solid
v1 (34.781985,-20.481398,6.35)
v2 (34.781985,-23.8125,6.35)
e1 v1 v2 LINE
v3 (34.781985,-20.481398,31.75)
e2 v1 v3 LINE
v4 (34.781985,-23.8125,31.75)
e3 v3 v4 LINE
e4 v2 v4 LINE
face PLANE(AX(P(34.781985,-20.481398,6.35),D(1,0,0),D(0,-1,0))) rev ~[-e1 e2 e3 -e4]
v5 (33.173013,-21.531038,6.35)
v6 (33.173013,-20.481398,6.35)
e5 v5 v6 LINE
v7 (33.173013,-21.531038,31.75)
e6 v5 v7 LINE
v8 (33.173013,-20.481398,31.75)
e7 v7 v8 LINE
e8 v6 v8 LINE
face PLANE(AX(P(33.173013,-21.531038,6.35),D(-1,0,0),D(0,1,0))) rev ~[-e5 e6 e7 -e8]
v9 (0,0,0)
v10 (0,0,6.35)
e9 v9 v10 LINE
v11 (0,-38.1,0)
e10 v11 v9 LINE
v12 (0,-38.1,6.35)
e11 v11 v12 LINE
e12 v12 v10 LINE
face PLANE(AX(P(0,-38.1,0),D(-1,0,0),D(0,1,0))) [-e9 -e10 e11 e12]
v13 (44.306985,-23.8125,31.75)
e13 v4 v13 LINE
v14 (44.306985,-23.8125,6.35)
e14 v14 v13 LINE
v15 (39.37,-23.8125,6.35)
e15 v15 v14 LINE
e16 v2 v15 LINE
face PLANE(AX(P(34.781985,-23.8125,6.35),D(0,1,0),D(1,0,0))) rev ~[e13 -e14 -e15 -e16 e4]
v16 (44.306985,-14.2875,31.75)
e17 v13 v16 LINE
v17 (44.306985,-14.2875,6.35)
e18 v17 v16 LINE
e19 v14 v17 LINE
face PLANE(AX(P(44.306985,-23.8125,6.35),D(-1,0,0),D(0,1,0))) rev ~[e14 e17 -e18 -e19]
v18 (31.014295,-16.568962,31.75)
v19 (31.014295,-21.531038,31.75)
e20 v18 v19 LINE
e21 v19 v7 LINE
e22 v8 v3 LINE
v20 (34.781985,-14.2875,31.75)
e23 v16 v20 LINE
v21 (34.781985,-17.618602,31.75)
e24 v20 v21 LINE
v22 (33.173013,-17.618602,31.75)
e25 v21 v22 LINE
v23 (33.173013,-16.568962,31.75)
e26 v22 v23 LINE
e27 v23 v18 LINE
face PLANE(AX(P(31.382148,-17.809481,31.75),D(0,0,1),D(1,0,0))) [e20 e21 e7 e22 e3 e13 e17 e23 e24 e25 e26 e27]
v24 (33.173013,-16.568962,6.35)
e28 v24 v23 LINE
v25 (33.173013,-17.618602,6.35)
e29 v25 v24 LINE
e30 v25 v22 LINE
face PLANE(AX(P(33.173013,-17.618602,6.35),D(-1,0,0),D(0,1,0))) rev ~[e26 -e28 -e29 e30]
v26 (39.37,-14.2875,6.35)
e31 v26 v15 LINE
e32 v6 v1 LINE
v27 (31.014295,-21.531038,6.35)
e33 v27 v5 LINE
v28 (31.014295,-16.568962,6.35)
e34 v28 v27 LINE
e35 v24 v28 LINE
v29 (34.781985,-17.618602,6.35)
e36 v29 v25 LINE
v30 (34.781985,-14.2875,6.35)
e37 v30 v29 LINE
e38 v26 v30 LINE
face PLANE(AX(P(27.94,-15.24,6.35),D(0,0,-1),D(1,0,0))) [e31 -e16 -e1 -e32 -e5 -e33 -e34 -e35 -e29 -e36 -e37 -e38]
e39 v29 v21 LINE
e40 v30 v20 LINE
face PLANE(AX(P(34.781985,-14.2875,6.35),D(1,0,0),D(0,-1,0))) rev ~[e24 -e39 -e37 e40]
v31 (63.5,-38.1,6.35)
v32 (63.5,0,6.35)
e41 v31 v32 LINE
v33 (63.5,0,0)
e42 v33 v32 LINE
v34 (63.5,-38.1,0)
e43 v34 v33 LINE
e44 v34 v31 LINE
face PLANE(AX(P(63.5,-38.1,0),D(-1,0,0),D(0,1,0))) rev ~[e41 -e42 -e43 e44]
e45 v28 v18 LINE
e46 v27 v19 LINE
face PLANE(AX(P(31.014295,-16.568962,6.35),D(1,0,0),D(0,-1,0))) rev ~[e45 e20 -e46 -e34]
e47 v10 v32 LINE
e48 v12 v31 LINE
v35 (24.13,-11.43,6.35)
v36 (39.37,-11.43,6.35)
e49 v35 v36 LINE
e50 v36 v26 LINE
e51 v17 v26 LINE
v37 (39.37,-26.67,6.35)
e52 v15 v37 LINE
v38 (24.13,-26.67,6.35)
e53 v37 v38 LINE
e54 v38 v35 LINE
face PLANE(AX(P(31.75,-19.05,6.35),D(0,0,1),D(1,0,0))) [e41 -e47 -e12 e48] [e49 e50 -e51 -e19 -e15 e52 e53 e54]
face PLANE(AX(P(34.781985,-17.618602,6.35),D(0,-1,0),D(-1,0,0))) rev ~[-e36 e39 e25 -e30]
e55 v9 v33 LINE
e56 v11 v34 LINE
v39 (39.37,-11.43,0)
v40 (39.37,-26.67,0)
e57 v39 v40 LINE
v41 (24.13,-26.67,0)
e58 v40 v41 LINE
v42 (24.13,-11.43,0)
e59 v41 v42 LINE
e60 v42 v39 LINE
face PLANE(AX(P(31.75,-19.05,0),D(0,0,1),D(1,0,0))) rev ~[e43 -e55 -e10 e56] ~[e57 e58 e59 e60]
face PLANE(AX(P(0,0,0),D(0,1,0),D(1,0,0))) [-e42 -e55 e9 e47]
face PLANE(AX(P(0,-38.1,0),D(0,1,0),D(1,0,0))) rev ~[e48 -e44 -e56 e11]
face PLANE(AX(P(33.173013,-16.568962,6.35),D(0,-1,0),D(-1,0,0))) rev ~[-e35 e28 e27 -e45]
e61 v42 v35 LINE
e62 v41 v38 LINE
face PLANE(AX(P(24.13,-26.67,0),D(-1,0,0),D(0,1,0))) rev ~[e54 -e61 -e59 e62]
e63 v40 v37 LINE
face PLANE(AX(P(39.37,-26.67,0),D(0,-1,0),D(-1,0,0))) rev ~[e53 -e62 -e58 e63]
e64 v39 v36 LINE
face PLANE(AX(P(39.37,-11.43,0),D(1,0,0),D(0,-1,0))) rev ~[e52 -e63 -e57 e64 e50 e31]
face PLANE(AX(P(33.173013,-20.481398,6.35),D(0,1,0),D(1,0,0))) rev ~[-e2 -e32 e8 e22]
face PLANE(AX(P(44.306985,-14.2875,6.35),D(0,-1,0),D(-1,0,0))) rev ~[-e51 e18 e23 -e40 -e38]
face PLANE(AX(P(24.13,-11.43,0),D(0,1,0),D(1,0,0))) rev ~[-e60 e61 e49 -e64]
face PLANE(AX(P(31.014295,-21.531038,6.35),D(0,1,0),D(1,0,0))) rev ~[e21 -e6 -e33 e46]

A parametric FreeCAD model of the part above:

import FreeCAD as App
import Part
import Sketcher

V = App.Vector
Q = App.Units.Quantity

doc = App.newDocument("Part")
body = doc.addObject("PartDesign::Body", "Body")

# Sketch on XY plane
sketch1 = body.newObject("Sketcher::SketchObject", "Sketch")
sketch1.AttachmentSupport = (doc.getObject("XY_Plane"), [""])
sketch1.MapMode = "FlatFace"
sketch1.addGeometry([
    Part.LineSegment(V(0, 0, 0), V(0, -38, 0)),
    Part.LineSegment(V(0, -38, 0), V(64, -38, 0)),
    Part.LineSegment(V(64, -38, 0), V(64, 0, 0)),
    Part.LineSegment(V(64, 0, 0), V(0, 0, 0)),
], False)
sketch1.addConstraint([
    Sketcher.Constraint("Coincident", 0, 2, 1, 1),
    Sketcher.Constraint("Coincident", 1, 2, 2, 1),
    Sketcher.Constraint("Coincident", 2, 2, 3, 1),
    Sketcher.Constraint("Coincident", 3, 2, 0, 1),
    Sketcher.Constraint("Vertical", 0),
    Sketcher.Constraint("Horizontal", 1),
    Sketcher.Constraint("Vertical", 2),
    Sketcher.Constraint("Horizontal", 3),
    Sketcher.Constraint("Coincident", 3, 2, -1, 1),
    Sketcher.Constraint("DistanceX", 1, 1, 1, 2, Q("2.5 in")),
    Sketcher.Constraint("DistanceY", 0, 2, 0, 1, Q("1.5 in")),
])
pad1 = body.newObject("PartDesign::Pad", "Pad")
pad1.Profile = sketch1
pad1.Length = Q("0.25 in")

# Sketch on XY plane
sketch2 = body.newObject("Sketcher::SketchObject", "Sketch001")
sketch2.AttachmentSupport = (doc.getObject("XY_Plane"), [""])
sketch2.MapMode = "FlatFace"
sketch2.AttachmentOffset = App.Placement(V(0, 0, 0.25 * 25.4), App.Rotation())
sketch2.addGeometry([
    Part.LineSegment(V(31, -16.6, 0), V(31, -21.5, 0)),  # 0
    Part.LineSegment(V(31, -21.5, 0), V(33.2, -21.5, 0)),  # 1
    Part.LineSegment(V(33.2, -21.5, 0), V(33.2, -20.5, 0)),  # 2
    Part.LineSegment(V(33.2, -20.5, 0), V(34.8, -20.5, 0)),  # 3
    Part.LineSegment(V(34.8, -20.5, 0), V(34.8, -23.8, 0)),  # 4
    Part.LineSegment(V(34.8, -23.8, 0), V(44.3, -23.8, 0)),  # 5
    Part.LineSegment(V(44.3, -23.8, 0), V(44.3, -14.3, 0)),  # 6
    Part.LineSegment(V(44.3, -14.3, 0), V(34.8, -14.3, 0)),  # 7
    Part.LineSegment(V(34.8, -14.3, 0), V(34.8, -17.6, 0)),  # 8
    Part.LineSegment(V(34.8, -17.6, 0), V(33.2, -17.6, 0)),  # 9
    Part.LineSegment(V(33.2, -17.6, 0), V(33.2, -16.6, 0)),  # 10
    Part.LineSegment(V(33.2, -16.6, 0), V(31, -16.6, 0)),  # 11
], False)
sketch2.addConstraint([
    Sketcher.Constraint("Coincident", 0, 2, 1, 1),
    Sketcher.Constraint("Coincident", 1, 2, 2, 1),
    Sketcher.Constraint("Coincident", 2, 2, 3, 1),
    Sketcher.Constraint("Coincident", 3, 2, 4, 1),
    Sketcher.Constraint("Coincident", 4, 2, 5, 1),
    Sketcher.Constraint("Coincident", 5, 2, 6, 1),
    Sketcher.Constraint("Coincident", 6, 2, 7, 1),
    Sketcher.Constraint("Coincident", 7, 2, 8, 1),
    Sketcher.Constraint("Coincident", 8, 2, 9, 1),
    Sketcher.Constraint("Coincident", 9, 2, 10, 1),
    Sketcher.Constraint("Coincident", 10, 2, 11, 1),
    Sketcher.Constraint("Coincident", 11, 2, 0, 1),
    Sketcher.Constraint("Vertical", 0),
    Sketcher.Constraint("Horizontal", 1),
    Sketcher.Constraint("Vertical", 2),
    Sketcher.Constraint("Horizontal", 3),
    Sketcher.Constraint("Vertical", 4),
    Sketcher.Constraint("Horizontal", 5),
    Sketcher.Constraint("Vertical", 6),
    Sketcher.Constraint("Horizontal", 7),
    Sketcher.Constraint("Vertical", 8),
    Sketcher.Constraint("Horizontal", 9),
    Sketcher.Constraint("Vertical", 10),
    Sketcher.Constraint("Horizontal", 11),
    Sketcher.Constraint("Vertical", 4, 2, 7, 2),
    Sketcher.Constraint("Vertical", 2, 2, 9, 2),
    Sketcher.Constraint("Equal", 7, 6),
    Sketcher.Constraint("Equal", 4, 8),
    Sketcher.Constraint("Equal", 2, 10),
    Sketcher.Constraint("DistanceX", 5, 1, 5, 2, Q("0.375 in")),
    Sketcher.Constraint("DistanceY", 4, 2, -1, 1, Q("0.9375 in")),
    Sketcher.Constraint("DistanceX", 1, 1, 1, 2, Q("2.158718 mm")),
    Sketcher.Constraint("DistanceX", 3, 1, 3, 2, Q("1.608972 mm")),
    Sketcher.Constraint("DistanceY", 2, 1, 2, 2, Q("1.04964 mm")),
    Sketcher.Constraint("DistanceY", 0, 2, 0, 1, Q("4.962075 mm")),
    Sketcher.Constraint("DistanceX", -1, 1, 0, 2, Q("31.014295 mm")),
])
pad2 = body.newObject("PartDesign::Pad", "Pad001")
pad2.Profile = sketch2
pad2.Length = Q("1 in")

# Sketch on XY plane
sketch3 = body.newObject("Sketcher::SketchObject", "Sketch002")
sketch3.AttachmentSupport = (doc.getObject("XY_Plane"), [""])
sketch3.MapMode = "FlatFace"
sketch3.addGeometry([
    Part.LineSegment(V(24, -11, 0), V(39, -11, 0)),
    Part.LineSegment(V(39, -11, 0), V(39, -27, 0)),
    Part.LineSegment(V(39, -27, 0), V(24, -27, 0)),
    Part.LineSegment(V(24, -27, 0), V(24, -11, 0)),
], False)
sketch3.addConstraint([
    Sketcher.Constraint("Coincident", 0, 2, 1, 1),
    Sketcher.Constraint("Coincident", 1, 2, 2, 1),
    Sketcher.Constraint("Coincident", 2, 2, 3, 1),
    Sketcher.Constraint("Coincident", 3, 2, 0, 1),
    Sketcher.Constraint("Horizontal", 0),
    Sketcher.Constraint("Vertical", 1),
    Sketcher.Constraint("Horizontal", 2),
    Sketcher.Constraint("Vertical", 3),
    Sketcher.Constraint("Equal", 2, 1),
    Sketcher.Constraint("DistanceX", 0, 1, 0, 2, Q("0.6 in")),
    Sketcher.Constraint("DistanceX", -1, 1, 0, 2, Q("1.55 in")),
    Sketcher.Constraint("DistanceY", 0, 2, -1, 1, Q("0.45 in")),
])
pocket1 = body.newObject("PartDesign::Pocket", "Pocket")
pocket1.Profile = sketch3
pocket1.Length = Q("0.25 in")
pocket1.Reversed = True

doc.recompute()
